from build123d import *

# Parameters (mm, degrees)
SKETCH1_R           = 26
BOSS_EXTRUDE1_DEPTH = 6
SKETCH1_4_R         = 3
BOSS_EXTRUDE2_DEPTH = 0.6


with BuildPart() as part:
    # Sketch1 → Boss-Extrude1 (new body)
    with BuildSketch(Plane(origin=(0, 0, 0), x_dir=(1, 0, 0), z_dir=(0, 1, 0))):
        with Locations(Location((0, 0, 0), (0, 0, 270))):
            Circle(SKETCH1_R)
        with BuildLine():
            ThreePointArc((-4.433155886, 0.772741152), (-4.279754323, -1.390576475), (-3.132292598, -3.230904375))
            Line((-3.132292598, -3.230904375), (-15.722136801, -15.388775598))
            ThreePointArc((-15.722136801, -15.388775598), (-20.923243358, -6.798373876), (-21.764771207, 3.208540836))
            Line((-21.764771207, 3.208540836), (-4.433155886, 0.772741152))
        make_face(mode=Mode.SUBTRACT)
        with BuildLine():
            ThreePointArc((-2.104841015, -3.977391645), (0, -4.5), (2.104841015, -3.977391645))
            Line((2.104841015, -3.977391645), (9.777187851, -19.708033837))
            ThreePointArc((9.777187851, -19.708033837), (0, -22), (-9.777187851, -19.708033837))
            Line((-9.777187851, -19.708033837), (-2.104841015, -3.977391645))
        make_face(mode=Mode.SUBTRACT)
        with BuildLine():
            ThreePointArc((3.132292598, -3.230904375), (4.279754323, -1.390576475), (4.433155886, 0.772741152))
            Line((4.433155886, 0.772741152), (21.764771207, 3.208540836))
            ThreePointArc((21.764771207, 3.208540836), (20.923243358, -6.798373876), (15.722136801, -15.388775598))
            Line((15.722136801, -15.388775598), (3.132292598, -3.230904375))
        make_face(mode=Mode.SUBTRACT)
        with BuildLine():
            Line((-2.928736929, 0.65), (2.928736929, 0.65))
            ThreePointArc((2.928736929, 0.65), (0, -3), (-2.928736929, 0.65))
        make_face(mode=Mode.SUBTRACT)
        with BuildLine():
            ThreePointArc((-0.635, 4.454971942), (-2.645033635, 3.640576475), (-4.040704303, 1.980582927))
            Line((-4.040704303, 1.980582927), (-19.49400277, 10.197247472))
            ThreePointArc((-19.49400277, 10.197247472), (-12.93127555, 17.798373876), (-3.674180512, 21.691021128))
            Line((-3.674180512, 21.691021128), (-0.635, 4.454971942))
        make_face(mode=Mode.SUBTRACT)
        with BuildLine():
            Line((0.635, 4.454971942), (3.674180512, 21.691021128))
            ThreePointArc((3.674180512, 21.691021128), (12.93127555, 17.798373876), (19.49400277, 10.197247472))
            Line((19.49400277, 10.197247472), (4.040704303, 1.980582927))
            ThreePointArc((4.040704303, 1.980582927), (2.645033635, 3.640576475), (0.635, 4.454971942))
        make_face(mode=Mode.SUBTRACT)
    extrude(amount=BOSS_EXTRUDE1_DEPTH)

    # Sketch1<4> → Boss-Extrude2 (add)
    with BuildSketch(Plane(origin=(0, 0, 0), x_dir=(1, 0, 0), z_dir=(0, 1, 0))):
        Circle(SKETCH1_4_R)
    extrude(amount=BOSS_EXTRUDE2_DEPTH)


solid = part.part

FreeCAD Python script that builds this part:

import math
import FreeCAD as App
import Part
import Sketcher
Q = App.Units.Quantity

doc = App.newDocument("Part")
body = doc.addObject("PartDesign::Body", "Body")

# Sketch on XZ plane
sketch1 = body.newObject("Sketcher::SketchObject", "Sketch")
sketch1.AttachmentSupport = (doc.getObject("XZ_Plane"), [""])
sketch1.MapMode = "FlatFace"
sketch1.addGeometry([
    Part.Circle(App.Vector(0, 0, 0), App.Vector(0, 0, 1), 26),  # 0
    Part.LineSegment(App.Vector(-3.674181, -21.691021, 0), App.Vector(-0.635, -4.454972, 0)),  # 1
    Part.ArcOfCircle(Part.Circle(App.Vector(0, 0, 0), App.Vector(0, 0, 1), 4.5), math.radians(-153.887853), math.radians(-98.112147)),  # 2
    Part.LineSegment(App.Vector(-4.040704, -1.980583, 0), App.Vector(-19.494003, -10.197247, 0)),  # 3
    Part.ArcOfCircle(Part.Circle(App.Vector(0, 0, 0), App.Vector(0, 0, 1), 22), math.radians(-152.386085), math.radians(-99.613915)),  # 4
    Part.LineSegment(App.Vector(-21.764771, -3.208541, 0), App.Vector(-4.433156, -0.772741, 0)),  # 5
    Part.ArcOfCircle(Part.Circle(App.Vector(0, 0, 0), App.Vector(0, 0, 1), 4.5), math.radians(134.112147), math.radians(189.887853)),  # 6
    Part.LineSegment(App.Vector(-3.132293, 3.230904, 0), App.Vector(-15.722137, 15.388776, 0)),  # 7
    Part.ArcOfCircle(Part.Circle(App.Vector(0, 0, 0), App.Vector(0, 0, 1), 22), math.radians(135.613915), math.radians(188.386085)),  # 8
    Part.ArcOfCircle(Part.Circle(App.Vector(0, 0, 0), App.Vector(0, 0, 1), 4.5), math.radians(-81.887853), math.radians(-26.112147)),  # 9
    Part.LineSegment(App.Vector(0.635, -4.454972, 0), App.Vector(3.674181, -21.691021, 0)),  # 10
    Part.ArcOfCircle(Part.Circle(App.Vector(0, 0, 0), App.Vector(0, 0, 1), 22), math.radians(-80.386085), math.radians(-27.613915)),  # 11
    Part.LineSegment(App.Vector(19.494003, -10.197247, 0), App.Vector(4.040704, -1.980583, 0)),  # 12
    Part.ArcOfCircle(Part.Circle(App.Vector(0, 0, 0), App.Vector(0, 0, 1), 3), math.radians(-12.513325), math.radians(192.513325)),  # 13
    Part.LineSegment(App.Vector(-2.928737, -0.65, 0), App.Vector(2.928737, -0.65, 0)),  # 14
    Part.LineSegment(App.Vector(-9.777188, 19.708034, 0), App.Vector(-2.104841, 3.977392, 0)),  # 15
    Part.ArcOfCircle(Part.Circle(App.Vector(0, 0, 0), App.Vector(0, 0, 1), 4.5), math.radians(62.112147), math.radians(117.887853)),  # 16
    Part.LineSegment(App.Vector(2.104841, 3.977392, 0), App.Vector(9.777188, 19.708034, 0)),  # 17
    Part.ArcOfCircle(Part.Circle(App.Vector(0, 0, 0), App.Vector(0, 0, 1), 22), math.radians(63.613915), math.radians(116.386085)),  # 18
    Part.LineSegment(App.Vector(15.722137, 15.388776, 0), App.Vector(3.132293, 3.230904, 0)),  # 19
    Part.ArcOfCircle(Part.Circle(App.Vector(0, 0, 0), App.Vector(0, 0, 1), 4.5), math.radians(-9.887853), math.radians(45.887853)),  # 20
    Part.LineSegment(App.Vector(4.433156, -0.772741, 0), App.Vector(21.764771, -3.208541, 0)),  # 21
    Part.ArcOfCircle(Part.Circle(App.Vector(0, 0, 0), App.Vector(0, 0, 1), 22), math.radians(-8.386085), math.radians(44.386085)),  # 22
], False)
sketch1.addConstraint([
    Sketcher.Constraint("Coincident", 1, 2, 2, 2),
    Sketcher.Constraint("Coincident", 2, 1, 3, 1),
    Sketcher.Constraint("Coincident", 3, 2, 4, 1),
    Sketcher.Constraint("Coincident", 4, 2, 1, 1),
    Sketcher.Constraint("Coincident", 5, 2, 6, 2),
    Sketcher.Constraint("Coincident", 6, 1, 7, 1),
    Sketcher.Constraint("Coincident", 7, 2, 8, 1),
    Sketcher.Constraint("Coincident", 8, 2, 5, 1),
    Sketcher.Constraint("Coincident", 9, 1, 10, 1),
    Sketcher.Constraint("Coincident", 10, 2, 11, 1),
    Sketcher.Constraint("Coincident", 11, 2, 12, 1),
    Sketcher.Constraint("Coincident", 12, 2, 9, 2),
    Sketcher.Constraint("Coincident", 13, 1, 14, 2),
    Sketcher.Constraint("Coincident", 14, 1, 13, 2),
    Sketcher.Constraint("Coincident", 15, 2, 16, 2),
    Sketcher.Constraint("Coincident", 16, 1, 17, 1),
    Sketcher.Constraint("Coincident", 17, 2, 18, 1),
    Sketcher.Constraint("Coincident", 18, 2, 15, 1),
    Sketcher.Constraint("Coincident", 19, 2, 20, 2),
    Sketcher.Constraint("Coincident", 20, 1, 21, 1),
    Sketcher.Constraint("Coincident", 21, 2, 22, 1),
    Sketcher.Constraint("Coincident", 22, 2, 19, 1),
    Sketcher.Constraint("Horizontal", 14),
    Sketcher.Constraint("Coincident", 0, 3, -1, 1),
    Sketcher.Constraint("Coincident", 2, 3, -1, 1),
    Sketcher.Constraint("Coincident", 4, 3, -1, 1),
    Sketcher.Constraint("Coincident", 6, 3, -1, 1),
    Sketcher.Constraint("Coincident", 8, 3, -1, 1),
    Sketcher.Constraint("Coincident", 9, 3, -1, 1),
    Sketcher.Constraint("Coincident", 11, 3, -1, 1),
    Sketcher.Constraint("Coincident", 13, 3, -1, 1),
    Sketcher.Constraint("Coincident", 16, 3, -1, 1),
    Sketcher.Constraint("Coincident", 18, 3, -1, 1),
    Sketcher.Constraint("Coincident", 20, 3, -1, 1),
    Sketcher.Constraint("Coincident", 22, 3, -1, 1),
    Sketcher.Constraint("Equal", 2, 6),
    Sketcher.Constraint("Equal", 4, 8),
    Sketcher.Constraint("Equal", 6, 9),
    Sketcher.Constraint("Equal", 8, 11),
    Sketcher.Constraint("Equal", 9, 16),
    Sketcher.Constraint("Equal", 11, 18),
    Sketcher.Constraint("Equal", 16, 20),
    Sketcher.Constraint("Equal", 18, 22),
    Sketcher.Constraint("Horizontal", 1, 2, 9, 1),
    Sketcher.Constraint("Horizontal", 4, 2, 10, 2),
    Sketcher.Constraint("Horizontal", 3, 2, 11, 2),
    Sketcher.Constraint("Horizontal", 2, 1, 12, 2),
    Sketcher.Constraint("Horizontal", 15, 2, 16, 1),
    Sketcher.Constraint("Horizontal", 17, 2, 18, 2),
    Sketcher.Constraint("Horizontal", 6, 1, 19, 2),
    Sketcher.Constraint("Horizontal", 5, 2, 20, 1),
    Sketcher.Constraint("Horizontal", 8, 2, 21, 2),
    Sketcher.Constraint("Horizontal", 7, 2, 22, 2),
    Sketcher.Constraint("Equal", 1, 3),
    Sketcher.Constraint("Equal", 3, 5),
    Sketcher.Constraint("Equal", 5, 7),
    Sketcher.Constraint("Equal", 12, 15),
    Sketcher.Constraint("Diameter", 0, Q("52 mm")),
    Sketcher.Constraint("Radius", 4, Q("22 mm")),
    Sketcher.Constraint("Radius", 13, Q("3 mm")),
    Sketcher.Constraint("Radius", 2, Q("4.5 mm")),
    Sketcher.Constraint("Angle", 1, Q("80 deg")),
    Sketcher.Constraint("Angle", 3, Q("-152 deg")),
    Sketcher.Constraint("Angle", 5, Q("8 deg")),
    Sketcher.Constraint("Angle", 7, Q("136 deg")),
    Sketcher.Constraint("Angle", 15, Q("-64 deg")),
    Sketcher.Constraint("DistanceY", 13, 1, -1, 1, Q("0.65 mm")),
    Sketcher.Constraint("DistanceX", 1, 2, 9, 1, Q("1.27 mm")),
])
pad1 = body.newObject("PartDesign::Pad", "Pad")
pad1.Profile = sketch1
pad1.Length = 6
pad1.Reversed = True

# Sketch on XZ plane
sketch2 = body.newObject("Sketcher::SketchObject", "Sketch001")
sketch2.AttachmentSupport = (doc.getObject("XZ_Plane"), [""])
sketch2.MapMode = "FlatFace"
sketch2.addGeometry(Part.Circle(App.Vector(0, 0, 0), App.Vector(0, 0, 1), 3), False)
sketch2.addConstraint([
    Sketcher.Constraint("Coincident", 0, 3, -1, 1),
    Sketcher.Constraint("Diameter", 0, Q("6 mm")),
])
pad2 = body.newObject("PartDesign::Pad", "Pad001")
pad2.Profile = sketch2
pad2.Length = 0.6
pad2.Reversed = True

doc.recompute()
